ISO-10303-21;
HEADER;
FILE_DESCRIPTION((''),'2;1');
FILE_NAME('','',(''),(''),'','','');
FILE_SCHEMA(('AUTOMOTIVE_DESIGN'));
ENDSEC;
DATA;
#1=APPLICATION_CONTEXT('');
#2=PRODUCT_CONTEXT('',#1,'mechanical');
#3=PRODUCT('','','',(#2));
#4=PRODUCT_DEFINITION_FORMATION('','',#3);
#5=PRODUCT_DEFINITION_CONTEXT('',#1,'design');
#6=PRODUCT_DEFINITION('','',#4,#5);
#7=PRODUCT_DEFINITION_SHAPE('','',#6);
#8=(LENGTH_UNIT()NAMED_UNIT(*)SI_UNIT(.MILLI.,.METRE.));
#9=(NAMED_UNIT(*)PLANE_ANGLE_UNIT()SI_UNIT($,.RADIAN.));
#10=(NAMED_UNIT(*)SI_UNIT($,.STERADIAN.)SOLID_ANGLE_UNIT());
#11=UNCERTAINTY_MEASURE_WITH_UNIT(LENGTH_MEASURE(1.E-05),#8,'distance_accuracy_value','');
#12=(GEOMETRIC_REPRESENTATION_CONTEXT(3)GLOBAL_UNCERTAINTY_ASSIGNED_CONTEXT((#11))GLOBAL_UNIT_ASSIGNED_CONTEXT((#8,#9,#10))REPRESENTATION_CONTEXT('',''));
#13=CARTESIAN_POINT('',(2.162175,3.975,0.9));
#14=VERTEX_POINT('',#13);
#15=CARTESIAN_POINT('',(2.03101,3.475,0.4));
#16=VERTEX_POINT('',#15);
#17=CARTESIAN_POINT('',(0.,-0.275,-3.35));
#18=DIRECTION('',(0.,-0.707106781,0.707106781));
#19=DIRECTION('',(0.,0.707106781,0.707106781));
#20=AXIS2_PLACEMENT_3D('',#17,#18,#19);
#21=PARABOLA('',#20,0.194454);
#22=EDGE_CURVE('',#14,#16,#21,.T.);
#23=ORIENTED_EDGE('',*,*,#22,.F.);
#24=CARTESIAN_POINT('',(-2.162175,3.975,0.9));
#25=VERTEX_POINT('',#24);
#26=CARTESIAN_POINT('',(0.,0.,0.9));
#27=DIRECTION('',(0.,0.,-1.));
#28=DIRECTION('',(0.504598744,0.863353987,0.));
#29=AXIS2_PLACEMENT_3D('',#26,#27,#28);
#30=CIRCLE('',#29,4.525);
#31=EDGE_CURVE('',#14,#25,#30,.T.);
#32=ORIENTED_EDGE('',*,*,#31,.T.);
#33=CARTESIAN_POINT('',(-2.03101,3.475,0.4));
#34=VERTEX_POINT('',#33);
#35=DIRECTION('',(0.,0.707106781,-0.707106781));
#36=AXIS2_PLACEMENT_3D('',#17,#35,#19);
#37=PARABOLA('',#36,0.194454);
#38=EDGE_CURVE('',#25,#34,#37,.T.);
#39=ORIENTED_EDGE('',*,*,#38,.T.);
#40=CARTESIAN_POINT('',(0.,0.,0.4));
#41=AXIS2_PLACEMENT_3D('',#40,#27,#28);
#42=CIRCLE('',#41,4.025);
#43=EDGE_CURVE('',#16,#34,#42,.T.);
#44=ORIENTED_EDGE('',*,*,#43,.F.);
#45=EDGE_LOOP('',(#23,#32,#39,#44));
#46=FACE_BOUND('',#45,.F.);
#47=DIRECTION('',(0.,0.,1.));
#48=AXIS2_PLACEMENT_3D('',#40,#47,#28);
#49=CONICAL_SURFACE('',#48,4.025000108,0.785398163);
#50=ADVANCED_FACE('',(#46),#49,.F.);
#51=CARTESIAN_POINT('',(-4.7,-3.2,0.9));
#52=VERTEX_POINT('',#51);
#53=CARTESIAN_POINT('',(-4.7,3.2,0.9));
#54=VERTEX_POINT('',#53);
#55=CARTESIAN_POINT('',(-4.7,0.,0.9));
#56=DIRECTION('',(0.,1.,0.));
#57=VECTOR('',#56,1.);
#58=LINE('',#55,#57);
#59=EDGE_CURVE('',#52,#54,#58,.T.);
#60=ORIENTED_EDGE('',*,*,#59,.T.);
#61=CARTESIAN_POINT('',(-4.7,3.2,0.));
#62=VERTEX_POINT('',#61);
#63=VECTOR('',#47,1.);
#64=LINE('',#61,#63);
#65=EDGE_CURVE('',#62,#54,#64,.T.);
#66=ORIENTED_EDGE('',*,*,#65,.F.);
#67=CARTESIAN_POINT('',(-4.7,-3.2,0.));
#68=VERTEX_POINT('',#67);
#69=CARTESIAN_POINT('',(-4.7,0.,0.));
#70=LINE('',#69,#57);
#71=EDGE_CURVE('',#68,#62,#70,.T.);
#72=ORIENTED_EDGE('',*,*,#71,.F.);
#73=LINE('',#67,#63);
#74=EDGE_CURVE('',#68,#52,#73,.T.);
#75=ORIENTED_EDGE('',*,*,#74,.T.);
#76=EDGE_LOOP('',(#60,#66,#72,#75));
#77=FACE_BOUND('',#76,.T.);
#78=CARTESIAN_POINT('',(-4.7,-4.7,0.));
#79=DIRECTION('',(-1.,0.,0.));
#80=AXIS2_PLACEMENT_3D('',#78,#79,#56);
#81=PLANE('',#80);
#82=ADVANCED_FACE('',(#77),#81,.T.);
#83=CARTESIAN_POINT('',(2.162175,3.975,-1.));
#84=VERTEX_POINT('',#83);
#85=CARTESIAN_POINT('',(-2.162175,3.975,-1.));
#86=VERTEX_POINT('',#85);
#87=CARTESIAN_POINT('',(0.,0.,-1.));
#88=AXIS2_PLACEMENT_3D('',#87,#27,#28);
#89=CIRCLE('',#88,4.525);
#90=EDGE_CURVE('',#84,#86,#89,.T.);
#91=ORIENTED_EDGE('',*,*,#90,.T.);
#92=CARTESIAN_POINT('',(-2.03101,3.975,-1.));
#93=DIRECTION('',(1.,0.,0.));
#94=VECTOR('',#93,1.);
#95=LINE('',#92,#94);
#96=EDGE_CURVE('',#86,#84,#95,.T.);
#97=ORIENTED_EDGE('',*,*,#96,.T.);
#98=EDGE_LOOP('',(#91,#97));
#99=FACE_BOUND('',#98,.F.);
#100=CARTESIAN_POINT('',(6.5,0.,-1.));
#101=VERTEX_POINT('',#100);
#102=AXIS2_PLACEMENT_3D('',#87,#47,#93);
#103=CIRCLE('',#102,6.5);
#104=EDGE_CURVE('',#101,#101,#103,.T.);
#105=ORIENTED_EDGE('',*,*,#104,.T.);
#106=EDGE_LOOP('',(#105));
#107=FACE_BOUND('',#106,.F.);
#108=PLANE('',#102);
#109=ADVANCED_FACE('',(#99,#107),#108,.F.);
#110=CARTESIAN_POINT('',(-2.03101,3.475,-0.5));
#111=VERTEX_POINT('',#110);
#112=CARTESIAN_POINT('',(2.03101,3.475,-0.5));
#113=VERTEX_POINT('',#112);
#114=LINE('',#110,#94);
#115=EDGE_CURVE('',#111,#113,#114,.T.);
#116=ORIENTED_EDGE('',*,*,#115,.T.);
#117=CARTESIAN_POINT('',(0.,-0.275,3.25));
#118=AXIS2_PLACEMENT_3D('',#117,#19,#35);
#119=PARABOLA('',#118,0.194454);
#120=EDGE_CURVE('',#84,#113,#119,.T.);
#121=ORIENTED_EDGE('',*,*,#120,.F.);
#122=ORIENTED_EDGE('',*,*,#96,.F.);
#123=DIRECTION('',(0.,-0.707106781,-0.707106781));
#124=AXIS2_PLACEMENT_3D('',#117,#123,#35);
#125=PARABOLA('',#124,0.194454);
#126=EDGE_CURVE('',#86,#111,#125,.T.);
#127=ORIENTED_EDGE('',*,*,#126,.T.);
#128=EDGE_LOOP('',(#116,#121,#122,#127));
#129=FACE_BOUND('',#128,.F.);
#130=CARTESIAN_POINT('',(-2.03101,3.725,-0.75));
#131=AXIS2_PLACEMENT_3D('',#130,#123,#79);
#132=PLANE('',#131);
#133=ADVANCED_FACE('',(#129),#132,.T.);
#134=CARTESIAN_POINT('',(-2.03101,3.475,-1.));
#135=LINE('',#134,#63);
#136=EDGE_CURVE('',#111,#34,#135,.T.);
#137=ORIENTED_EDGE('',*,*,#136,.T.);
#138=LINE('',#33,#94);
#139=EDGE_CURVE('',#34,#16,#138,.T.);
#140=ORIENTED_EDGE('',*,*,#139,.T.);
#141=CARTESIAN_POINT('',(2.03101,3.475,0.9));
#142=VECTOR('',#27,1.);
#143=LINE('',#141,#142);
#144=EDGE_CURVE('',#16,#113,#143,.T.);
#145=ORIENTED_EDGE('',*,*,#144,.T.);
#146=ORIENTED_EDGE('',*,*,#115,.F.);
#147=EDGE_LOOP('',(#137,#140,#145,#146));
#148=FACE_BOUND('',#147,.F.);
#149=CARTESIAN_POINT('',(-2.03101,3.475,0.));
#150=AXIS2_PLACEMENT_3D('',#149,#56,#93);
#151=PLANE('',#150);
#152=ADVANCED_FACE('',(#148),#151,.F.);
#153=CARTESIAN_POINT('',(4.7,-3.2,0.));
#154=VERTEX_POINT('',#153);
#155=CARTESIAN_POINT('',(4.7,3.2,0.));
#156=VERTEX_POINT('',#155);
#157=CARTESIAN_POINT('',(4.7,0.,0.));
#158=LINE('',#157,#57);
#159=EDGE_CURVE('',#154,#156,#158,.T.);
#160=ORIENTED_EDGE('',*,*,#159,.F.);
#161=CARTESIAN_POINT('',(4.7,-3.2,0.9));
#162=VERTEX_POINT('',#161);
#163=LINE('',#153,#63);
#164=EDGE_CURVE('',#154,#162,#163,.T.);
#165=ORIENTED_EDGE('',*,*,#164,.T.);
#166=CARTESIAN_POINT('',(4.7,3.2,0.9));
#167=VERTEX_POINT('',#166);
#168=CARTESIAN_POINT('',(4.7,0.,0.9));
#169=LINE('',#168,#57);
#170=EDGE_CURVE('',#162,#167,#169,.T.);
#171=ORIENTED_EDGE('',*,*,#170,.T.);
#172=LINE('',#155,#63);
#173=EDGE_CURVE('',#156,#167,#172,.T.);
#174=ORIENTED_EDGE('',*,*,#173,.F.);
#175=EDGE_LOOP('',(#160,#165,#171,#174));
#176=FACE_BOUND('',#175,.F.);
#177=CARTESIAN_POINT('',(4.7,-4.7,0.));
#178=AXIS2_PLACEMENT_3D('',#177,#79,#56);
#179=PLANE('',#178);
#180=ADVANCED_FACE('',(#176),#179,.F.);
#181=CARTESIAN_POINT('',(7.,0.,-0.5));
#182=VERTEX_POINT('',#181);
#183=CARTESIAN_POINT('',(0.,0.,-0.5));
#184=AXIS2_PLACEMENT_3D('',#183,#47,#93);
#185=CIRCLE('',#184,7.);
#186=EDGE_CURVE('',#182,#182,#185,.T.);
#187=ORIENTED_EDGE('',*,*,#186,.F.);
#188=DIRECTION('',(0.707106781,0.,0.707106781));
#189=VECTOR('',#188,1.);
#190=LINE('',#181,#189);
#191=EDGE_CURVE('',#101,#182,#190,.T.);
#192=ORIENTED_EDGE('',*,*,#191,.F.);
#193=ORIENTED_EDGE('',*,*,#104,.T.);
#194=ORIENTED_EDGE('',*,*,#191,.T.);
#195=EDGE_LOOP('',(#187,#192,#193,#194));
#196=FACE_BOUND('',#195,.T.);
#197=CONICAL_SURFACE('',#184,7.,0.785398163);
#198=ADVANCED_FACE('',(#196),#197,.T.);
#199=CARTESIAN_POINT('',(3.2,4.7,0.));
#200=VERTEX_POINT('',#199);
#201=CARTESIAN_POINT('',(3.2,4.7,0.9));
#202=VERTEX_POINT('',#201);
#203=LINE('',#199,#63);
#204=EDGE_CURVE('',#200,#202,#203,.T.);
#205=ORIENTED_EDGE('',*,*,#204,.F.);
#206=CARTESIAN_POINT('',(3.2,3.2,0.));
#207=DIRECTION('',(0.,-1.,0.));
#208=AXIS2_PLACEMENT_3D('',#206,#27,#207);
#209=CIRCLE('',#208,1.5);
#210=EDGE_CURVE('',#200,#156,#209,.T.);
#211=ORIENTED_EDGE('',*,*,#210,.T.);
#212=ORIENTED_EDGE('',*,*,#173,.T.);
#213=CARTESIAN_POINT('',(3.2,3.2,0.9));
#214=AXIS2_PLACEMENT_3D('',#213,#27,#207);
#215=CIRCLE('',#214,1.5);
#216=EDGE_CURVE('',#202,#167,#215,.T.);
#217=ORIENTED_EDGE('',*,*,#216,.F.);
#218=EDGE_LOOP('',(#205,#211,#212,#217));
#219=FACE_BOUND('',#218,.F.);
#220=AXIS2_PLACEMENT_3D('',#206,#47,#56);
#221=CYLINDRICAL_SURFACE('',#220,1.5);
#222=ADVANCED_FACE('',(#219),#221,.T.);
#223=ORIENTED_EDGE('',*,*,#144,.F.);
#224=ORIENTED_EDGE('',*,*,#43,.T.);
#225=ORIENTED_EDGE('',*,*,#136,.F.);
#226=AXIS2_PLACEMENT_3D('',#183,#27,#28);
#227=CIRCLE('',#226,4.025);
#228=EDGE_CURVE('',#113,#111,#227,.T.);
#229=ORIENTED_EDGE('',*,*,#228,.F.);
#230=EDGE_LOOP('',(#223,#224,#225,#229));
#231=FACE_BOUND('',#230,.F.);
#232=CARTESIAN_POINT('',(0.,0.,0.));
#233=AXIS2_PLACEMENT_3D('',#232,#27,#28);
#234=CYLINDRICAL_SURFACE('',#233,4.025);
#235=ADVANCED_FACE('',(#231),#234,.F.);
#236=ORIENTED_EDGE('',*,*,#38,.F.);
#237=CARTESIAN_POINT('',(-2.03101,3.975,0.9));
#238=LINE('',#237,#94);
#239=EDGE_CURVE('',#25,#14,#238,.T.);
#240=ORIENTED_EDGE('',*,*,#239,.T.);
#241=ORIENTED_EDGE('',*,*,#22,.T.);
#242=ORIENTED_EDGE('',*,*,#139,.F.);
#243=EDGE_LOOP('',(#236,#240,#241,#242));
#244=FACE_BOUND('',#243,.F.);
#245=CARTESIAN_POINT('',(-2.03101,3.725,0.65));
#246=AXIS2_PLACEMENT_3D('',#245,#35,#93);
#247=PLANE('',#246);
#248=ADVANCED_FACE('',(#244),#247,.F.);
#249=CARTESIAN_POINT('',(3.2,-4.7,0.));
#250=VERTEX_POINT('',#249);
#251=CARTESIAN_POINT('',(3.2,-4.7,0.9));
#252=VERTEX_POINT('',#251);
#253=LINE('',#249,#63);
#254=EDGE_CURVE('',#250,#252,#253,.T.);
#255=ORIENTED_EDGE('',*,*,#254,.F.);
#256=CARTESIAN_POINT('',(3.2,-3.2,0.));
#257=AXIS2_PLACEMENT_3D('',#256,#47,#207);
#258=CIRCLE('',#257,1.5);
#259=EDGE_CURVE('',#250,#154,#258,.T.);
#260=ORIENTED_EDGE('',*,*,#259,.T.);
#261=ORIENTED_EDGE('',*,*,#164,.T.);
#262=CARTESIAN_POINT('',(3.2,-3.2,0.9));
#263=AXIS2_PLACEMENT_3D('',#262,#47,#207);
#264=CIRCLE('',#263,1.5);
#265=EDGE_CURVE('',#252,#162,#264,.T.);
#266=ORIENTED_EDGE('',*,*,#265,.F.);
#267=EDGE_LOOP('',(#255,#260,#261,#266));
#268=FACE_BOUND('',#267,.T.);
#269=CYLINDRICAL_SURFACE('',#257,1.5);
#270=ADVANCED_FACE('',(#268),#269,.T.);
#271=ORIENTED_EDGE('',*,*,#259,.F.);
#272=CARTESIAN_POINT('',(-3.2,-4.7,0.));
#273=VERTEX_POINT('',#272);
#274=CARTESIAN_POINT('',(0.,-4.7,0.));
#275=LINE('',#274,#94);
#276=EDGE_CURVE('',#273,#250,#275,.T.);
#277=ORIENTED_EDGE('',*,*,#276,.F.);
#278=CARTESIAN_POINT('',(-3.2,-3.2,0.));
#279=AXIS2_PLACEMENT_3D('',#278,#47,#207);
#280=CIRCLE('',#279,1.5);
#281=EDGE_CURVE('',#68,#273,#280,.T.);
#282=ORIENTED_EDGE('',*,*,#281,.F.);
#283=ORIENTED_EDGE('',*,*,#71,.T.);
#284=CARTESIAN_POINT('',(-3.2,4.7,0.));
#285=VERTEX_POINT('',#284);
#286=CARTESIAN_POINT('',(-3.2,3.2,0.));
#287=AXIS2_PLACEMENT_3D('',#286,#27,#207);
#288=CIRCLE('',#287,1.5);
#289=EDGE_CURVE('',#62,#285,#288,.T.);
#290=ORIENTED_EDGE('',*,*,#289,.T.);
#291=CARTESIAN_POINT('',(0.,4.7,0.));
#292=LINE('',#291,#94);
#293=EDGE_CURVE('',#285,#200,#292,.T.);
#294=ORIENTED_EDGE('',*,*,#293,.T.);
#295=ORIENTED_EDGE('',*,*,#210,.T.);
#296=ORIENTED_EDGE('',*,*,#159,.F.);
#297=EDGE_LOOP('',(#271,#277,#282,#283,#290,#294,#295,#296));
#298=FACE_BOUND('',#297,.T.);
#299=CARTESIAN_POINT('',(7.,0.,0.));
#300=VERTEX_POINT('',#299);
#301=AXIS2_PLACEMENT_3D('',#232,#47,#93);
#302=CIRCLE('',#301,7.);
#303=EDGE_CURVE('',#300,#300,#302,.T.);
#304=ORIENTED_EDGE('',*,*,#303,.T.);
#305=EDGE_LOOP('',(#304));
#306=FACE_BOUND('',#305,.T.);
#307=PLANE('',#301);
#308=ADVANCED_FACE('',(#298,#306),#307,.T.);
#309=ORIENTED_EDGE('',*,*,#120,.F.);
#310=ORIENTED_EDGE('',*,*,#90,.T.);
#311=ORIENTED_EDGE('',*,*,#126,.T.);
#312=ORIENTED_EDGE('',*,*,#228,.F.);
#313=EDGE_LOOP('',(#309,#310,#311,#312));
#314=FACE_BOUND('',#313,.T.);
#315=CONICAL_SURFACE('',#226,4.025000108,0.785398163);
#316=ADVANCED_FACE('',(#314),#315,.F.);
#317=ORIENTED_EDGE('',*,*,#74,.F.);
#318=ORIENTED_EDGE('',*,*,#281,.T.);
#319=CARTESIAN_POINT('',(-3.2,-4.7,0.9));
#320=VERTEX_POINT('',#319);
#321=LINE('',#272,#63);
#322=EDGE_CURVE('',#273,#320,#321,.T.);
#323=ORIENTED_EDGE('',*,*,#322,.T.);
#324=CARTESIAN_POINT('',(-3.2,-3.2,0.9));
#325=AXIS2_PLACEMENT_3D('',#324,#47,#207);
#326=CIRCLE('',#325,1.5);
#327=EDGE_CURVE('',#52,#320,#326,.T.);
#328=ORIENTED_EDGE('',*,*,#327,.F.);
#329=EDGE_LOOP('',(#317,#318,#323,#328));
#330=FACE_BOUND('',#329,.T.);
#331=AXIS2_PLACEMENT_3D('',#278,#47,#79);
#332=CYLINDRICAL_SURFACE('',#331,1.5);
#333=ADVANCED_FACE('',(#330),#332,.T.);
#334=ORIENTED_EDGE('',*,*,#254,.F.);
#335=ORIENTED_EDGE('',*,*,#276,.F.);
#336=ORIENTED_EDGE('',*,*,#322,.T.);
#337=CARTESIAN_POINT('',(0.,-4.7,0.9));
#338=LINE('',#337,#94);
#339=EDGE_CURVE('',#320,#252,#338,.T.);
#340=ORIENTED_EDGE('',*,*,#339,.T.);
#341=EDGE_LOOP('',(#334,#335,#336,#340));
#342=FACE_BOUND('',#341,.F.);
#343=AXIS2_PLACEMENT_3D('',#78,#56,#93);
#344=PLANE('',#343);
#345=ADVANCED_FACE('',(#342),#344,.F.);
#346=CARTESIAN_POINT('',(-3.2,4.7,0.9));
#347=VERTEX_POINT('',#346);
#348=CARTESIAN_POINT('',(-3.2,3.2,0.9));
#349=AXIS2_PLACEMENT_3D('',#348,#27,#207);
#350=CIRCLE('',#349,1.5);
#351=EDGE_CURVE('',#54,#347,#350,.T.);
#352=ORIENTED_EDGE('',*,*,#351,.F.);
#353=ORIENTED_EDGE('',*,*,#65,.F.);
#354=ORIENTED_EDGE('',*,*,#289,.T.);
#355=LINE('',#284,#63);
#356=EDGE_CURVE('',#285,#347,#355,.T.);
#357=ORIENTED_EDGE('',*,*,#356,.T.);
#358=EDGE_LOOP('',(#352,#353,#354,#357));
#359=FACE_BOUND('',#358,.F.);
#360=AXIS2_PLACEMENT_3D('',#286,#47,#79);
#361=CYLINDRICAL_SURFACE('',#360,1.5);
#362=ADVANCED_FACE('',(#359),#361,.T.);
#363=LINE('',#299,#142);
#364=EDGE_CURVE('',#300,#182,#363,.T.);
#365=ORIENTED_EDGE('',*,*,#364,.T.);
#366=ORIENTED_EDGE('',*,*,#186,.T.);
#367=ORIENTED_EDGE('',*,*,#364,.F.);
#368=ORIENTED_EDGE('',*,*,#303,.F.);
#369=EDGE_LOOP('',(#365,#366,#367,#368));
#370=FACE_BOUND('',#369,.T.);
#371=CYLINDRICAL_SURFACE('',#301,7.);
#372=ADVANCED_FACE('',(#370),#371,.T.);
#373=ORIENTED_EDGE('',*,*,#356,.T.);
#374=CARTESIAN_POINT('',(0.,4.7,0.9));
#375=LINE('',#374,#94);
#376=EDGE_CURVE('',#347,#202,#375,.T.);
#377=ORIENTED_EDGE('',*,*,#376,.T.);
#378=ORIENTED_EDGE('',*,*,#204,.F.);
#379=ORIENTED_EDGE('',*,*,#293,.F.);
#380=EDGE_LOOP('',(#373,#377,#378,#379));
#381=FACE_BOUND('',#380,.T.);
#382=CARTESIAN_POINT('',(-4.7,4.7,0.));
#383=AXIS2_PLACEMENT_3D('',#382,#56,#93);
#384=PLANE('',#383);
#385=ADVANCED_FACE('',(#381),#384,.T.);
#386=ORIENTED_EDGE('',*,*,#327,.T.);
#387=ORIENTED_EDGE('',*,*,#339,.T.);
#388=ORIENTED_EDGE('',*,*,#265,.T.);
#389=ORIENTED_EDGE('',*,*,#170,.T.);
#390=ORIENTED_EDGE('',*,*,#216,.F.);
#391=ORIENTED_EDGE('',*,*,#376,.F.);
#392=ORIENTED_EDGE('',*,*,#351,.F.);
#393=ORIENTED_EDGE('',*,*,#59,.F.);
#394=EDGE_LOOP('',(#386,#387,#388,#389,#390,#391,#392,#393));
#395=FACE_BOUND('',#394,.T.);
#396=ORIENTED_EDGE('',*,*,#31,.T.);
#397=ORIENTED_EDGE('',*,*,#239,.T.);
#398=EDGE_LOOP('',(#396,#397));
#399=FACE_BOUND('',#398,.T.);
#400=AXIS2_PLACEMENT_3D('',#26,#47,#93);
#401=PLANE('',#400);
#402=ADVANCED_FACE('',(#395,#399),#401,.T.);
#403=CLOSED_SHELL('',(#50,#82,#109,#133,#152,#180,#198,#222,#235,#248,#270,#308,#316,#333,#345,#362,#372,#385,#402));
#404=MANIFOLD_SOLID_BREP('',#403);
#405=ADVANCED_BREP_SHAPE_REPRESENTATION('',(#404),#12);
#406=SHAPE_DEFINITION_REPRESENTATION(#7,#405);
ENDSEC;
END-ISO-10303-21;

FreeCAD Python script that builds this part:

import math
import FreeCAD as App
import Part
import Sketcher
from FreeCAD import Vector


def edges_at(feature, points):
    """Names of the edges that pass closest to the given points."""
    edges = feature.Shape.Edges
    near = lambda p: min(range(len(edges)), key=lambda i: edges[i].distToShape(Part.Vertex(*p))[0])
    return sorted({f"Edge{near(p) + 1}" for p in points})


def add_polygon(sketch, points):
    """Adds a closed chain of lines whose ends are joined by coincident constraints."""
    first, n = sketch.GeometryCount, len(points)
    for a, b in zip(points, points[1:] + points[:1]):
        sketch.addGeometry(Part.LineSegment(App.Vector(*a, 0), App.Vector(*b, 0)), False)
    for i in range(n):
        sketch.addConstraint(Sketcher.Constraint("Coincident", first + i, 2, first + (i + 1) % n, 1))

doc = App.newDocument("Part")
body = doc.addObject("PartDesign::Body", "Body")

sketch1 = doc.addObject("Sketcher::SketchObject", "Sketch")
body.addObject(sketch1)
sketch1.AttachmentSupport = (doc.XY_Plane, [""])
sketch1.MapMode = "FlatFace"
sketch1.addGeometry(Part.Circle(Vector(0, 0, 0), Vector(0, 0, 1), 7), False)
sketch1.addGeometry(Part.LineSegment(Vector(-2.03101, 3.475, 0), Vector(2.03101, 3.475, 0)), False)
sketch1.addGeometry(Part.ArcOfCircle(Part.Circle(Vector(0, 0, 0), Vector(0, 0, 1), 4.025), math.radians(120.30472), math.radians(419.69528)), False)
sketch1.addConstraint(Sketcher.Constraint("Coincident", 1, 1, 2, 1))
sketch1.addConstraint(Sketcher.Constraint("Coincident", 2, 2, 1, 2))
sketch1.addConstraint(Sketcher.Constraint("Horizontal", 1))
sketch1.addConstraint(Sketcher.Constraint("Coincident", 0, 3, -1, 1))
sketch1.addConstraint(Sketcher.Constraint("Coincident", 2, 3, -1, 1))
sketch1.addConstraint(Sketcher.Constraint("Diameter", 0, 14.0))
sketch1.addConstraint(Sketcher.Constraint("Radius", 2, 4.025))
sketch1.addConstraint(Sketcher.Constraint("DistanceY", -1, 1, 1, 1, 3.475))
pad1 = doc.addObject("PartDesign::Pad", "Pad")
body.addObject(pad1)
pad1.Profile = sketch1
pad1.Length = 1
pad1.Reversed = True

sketch2 = doc.addObject("Sketcher::SketchObject", "Sketch001")
body.addObject(sketch2)
sketch2.AttachmentSupport = (doc.XY_Plane, [""])
sketch2.MapMode = "FlatFace"
add_polygon(sketch2, [(-4.7, 4.7), (-4.7, -4.7), (4.7, -4.7), (4.7, 4.7)])
sketch2.addGeometry(Part.ArcOfCircle(Part.Circle(Vector(0, 0, 0), Vector(0, 0, 1), 4.025), math.radians(120.30472), math.radians(419.69528)), False)
sketch2.addGeometry(Part.LineSegment(Vector(-2.03101, 3.475, 0), Vector(2.03101, 3.475, 0)), False)
sketch2.addConstraint(Sketcher.Constraint("Coincident", 4, 1, 5, 1))
sketch2.addConstraint(Sketcher.Constraint("Coincident", 5, 2, 4, 2))
sketch2.addConstraint(Sketcher.Constraint("Vertical", 0))
sketch2.addConstraint(Sketcher.Constraint("Horizontal", 1))
sketch2.addConstraint(Sketcher.Constraint("Vertical", 2))
sketch2.addConstraint(Sketcher.Constraint("Horizontal", 3))
sketch2.addConstraint(Sketcher.Constraint("Horizontal", 5))
sketch2.addConstraint(Sketcher.Constraint("Coincident", 4, 3, -1, 1))
sketch2.addConstraint(Sketcher.Constraint("Symmetric", 0, 2, 2, 2, -1, 1))
sketch2.addConstraint(Sketcher.Constraint("Equal", 3, 0))
sketch2.addConstraint(Sketcher.Constraint("DistanceX", 1, 1, 1, 2, 9.4))
sketch2.addConstraint(Sketcher.Constraint("Radius", 4, 4.025))
sketch2.addConstraint(Sketcher.Constraint("DistanceY", -1, 1, 4, 1, 3.475))
pad2 = doc.addObject("PartDesign::Pad", "Pad001")
body.addObject(pad2)
pad2.Profile = sketch2
pad2.Length = 0.9
doc.recompute()

chamfer = doc.addObject("PartDesign::Chamfer", "Chamfer")
body.addObject(chamfer)
chamfer.Base = (pad2, edges_at(pad2, [
    (0, -4.025, -1),
    (-7, 0, -1),
    (0, 3.475, -1),
    (0, -4.025, 0.9),
    (0, 3.475, 0.9),
]))
chamfer.ChamferType = "Two distances"
chamfer.Size = 0.5
chamfer.Size2 = 0.5
doc.recompute()

fillet = doc.addObject("PartDesign::Fillet", "Fillet")
body.addObject(fillet)
fillet.Base = (chamfer, edges_at(chamfer, [
    (-4.7, 4.7, 0.45),
    (4.7, 4.7, 0.45),
    (4.7, -4.7, 0.45),
    (-4.7, -4.7, 0.45),
]))
fillet.Radius = 1.5

doc.recompute()
